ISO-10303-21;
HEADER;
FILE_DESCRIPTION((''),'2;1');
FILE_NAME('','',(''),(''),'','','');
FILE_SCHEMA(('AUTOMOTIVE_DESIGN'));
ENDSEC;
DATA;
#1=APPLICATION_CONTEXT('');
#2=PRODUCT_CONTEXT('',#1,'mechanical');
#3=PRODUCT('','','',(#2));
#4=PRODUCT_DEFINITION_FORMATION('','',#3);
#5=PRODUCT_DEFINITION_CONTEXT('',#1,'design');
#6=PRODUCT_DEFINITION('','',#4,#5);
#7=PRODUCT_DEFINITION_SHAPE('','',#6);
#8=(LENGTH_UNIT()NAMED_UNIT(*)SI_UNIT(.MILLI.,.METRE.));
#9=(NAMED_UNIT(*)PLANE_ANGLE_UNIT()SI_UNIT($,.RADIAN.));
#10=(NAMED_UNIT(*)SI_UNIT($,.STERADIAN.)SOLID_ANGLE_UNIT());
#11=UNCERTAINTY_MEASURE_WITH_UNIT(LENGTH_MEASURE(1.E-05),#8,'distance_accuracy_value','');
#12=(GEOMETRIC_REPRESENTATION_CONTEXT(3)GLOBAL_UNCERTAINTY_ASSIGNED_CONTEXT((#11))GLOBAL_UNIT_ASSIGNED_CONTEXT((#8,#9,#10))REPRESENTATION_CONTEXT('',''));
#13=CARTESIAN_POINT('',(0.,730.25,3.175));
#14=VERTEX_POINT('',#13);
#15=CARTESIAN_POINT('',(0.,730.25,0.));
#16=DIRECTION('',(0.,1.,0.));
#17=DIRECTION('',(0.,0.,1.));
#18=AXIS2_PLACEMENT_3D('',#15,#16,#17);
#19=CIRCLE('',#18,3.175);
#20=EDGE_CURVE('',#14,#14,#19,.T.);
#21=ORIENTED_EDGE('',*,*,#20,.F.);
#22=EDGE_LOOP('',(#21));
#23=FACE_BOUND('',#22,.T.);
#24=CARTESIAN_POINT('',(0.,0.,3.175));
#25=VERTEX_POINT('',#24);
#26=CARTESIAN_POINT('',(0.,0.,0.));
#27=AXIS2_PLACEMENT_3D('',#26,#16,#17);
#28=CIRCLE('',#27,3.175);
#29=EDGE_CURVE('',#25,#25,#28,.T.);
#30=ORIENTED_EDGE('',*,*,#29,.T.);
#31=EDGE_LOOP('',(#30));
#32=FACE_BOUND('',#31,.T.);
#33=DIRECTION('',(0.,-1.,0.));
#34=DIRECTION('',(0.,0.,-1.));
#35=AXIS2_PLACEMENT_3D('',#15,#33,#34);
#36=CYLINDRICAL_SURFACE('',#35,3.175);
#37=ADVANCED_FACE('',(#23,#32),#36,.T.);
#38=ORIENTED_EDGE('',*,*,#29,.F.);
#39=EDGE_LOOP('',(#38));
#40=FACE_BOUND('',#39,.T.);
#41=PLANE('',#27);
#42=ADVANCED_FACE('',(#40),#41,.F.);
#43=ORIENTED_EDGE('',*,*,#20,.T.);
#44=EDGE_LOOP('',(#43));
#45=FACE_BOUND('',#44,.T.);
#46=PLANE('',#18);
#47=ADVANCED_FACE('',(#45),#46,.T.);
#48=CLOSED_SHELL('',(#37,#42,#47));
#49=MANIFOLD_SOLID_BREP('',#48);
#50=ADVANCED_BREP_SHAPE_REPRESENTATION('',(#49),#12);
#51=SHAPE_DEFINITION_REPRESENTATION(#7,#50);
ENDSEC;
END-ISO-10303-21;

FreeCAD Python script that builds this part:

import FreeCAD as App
import Part
import Sketcher
Q = App.Units.Quantity

doc = App.newDocument("Part")
body = doc.addObject("PartDesign::Body", "Body")

# Sketch on XZ plane
sketch1 = doc.addObject("Sketcher::SketchObject", "Sketch")
body.addObject(sketch1)
sketch1.AttachmentSupport = (doc.XZ_Plane, [""])
sketch1.MapMode = "FlatFace"
sketch1.addGeometry(Part.Circle(App.Vector(0, 0, 0), App.Vector(0, 0, 1), 3.175), False)
sketch1.addConstraint(Sketcher.Constraint("Coincident", 0, 3, -1, 1))
sketch1.addConstraint(Sketcher.Constraint("Diameter", 0, Q("0.25 in")))
pad1 = doc.addObject("PartDesign::Pad", "Pad")
body.addObject(pad1)
pad1.Profile = sketch1
pad1.Length = Q("28.75 in")
pad1.Reversed = True

doc.recompute()
